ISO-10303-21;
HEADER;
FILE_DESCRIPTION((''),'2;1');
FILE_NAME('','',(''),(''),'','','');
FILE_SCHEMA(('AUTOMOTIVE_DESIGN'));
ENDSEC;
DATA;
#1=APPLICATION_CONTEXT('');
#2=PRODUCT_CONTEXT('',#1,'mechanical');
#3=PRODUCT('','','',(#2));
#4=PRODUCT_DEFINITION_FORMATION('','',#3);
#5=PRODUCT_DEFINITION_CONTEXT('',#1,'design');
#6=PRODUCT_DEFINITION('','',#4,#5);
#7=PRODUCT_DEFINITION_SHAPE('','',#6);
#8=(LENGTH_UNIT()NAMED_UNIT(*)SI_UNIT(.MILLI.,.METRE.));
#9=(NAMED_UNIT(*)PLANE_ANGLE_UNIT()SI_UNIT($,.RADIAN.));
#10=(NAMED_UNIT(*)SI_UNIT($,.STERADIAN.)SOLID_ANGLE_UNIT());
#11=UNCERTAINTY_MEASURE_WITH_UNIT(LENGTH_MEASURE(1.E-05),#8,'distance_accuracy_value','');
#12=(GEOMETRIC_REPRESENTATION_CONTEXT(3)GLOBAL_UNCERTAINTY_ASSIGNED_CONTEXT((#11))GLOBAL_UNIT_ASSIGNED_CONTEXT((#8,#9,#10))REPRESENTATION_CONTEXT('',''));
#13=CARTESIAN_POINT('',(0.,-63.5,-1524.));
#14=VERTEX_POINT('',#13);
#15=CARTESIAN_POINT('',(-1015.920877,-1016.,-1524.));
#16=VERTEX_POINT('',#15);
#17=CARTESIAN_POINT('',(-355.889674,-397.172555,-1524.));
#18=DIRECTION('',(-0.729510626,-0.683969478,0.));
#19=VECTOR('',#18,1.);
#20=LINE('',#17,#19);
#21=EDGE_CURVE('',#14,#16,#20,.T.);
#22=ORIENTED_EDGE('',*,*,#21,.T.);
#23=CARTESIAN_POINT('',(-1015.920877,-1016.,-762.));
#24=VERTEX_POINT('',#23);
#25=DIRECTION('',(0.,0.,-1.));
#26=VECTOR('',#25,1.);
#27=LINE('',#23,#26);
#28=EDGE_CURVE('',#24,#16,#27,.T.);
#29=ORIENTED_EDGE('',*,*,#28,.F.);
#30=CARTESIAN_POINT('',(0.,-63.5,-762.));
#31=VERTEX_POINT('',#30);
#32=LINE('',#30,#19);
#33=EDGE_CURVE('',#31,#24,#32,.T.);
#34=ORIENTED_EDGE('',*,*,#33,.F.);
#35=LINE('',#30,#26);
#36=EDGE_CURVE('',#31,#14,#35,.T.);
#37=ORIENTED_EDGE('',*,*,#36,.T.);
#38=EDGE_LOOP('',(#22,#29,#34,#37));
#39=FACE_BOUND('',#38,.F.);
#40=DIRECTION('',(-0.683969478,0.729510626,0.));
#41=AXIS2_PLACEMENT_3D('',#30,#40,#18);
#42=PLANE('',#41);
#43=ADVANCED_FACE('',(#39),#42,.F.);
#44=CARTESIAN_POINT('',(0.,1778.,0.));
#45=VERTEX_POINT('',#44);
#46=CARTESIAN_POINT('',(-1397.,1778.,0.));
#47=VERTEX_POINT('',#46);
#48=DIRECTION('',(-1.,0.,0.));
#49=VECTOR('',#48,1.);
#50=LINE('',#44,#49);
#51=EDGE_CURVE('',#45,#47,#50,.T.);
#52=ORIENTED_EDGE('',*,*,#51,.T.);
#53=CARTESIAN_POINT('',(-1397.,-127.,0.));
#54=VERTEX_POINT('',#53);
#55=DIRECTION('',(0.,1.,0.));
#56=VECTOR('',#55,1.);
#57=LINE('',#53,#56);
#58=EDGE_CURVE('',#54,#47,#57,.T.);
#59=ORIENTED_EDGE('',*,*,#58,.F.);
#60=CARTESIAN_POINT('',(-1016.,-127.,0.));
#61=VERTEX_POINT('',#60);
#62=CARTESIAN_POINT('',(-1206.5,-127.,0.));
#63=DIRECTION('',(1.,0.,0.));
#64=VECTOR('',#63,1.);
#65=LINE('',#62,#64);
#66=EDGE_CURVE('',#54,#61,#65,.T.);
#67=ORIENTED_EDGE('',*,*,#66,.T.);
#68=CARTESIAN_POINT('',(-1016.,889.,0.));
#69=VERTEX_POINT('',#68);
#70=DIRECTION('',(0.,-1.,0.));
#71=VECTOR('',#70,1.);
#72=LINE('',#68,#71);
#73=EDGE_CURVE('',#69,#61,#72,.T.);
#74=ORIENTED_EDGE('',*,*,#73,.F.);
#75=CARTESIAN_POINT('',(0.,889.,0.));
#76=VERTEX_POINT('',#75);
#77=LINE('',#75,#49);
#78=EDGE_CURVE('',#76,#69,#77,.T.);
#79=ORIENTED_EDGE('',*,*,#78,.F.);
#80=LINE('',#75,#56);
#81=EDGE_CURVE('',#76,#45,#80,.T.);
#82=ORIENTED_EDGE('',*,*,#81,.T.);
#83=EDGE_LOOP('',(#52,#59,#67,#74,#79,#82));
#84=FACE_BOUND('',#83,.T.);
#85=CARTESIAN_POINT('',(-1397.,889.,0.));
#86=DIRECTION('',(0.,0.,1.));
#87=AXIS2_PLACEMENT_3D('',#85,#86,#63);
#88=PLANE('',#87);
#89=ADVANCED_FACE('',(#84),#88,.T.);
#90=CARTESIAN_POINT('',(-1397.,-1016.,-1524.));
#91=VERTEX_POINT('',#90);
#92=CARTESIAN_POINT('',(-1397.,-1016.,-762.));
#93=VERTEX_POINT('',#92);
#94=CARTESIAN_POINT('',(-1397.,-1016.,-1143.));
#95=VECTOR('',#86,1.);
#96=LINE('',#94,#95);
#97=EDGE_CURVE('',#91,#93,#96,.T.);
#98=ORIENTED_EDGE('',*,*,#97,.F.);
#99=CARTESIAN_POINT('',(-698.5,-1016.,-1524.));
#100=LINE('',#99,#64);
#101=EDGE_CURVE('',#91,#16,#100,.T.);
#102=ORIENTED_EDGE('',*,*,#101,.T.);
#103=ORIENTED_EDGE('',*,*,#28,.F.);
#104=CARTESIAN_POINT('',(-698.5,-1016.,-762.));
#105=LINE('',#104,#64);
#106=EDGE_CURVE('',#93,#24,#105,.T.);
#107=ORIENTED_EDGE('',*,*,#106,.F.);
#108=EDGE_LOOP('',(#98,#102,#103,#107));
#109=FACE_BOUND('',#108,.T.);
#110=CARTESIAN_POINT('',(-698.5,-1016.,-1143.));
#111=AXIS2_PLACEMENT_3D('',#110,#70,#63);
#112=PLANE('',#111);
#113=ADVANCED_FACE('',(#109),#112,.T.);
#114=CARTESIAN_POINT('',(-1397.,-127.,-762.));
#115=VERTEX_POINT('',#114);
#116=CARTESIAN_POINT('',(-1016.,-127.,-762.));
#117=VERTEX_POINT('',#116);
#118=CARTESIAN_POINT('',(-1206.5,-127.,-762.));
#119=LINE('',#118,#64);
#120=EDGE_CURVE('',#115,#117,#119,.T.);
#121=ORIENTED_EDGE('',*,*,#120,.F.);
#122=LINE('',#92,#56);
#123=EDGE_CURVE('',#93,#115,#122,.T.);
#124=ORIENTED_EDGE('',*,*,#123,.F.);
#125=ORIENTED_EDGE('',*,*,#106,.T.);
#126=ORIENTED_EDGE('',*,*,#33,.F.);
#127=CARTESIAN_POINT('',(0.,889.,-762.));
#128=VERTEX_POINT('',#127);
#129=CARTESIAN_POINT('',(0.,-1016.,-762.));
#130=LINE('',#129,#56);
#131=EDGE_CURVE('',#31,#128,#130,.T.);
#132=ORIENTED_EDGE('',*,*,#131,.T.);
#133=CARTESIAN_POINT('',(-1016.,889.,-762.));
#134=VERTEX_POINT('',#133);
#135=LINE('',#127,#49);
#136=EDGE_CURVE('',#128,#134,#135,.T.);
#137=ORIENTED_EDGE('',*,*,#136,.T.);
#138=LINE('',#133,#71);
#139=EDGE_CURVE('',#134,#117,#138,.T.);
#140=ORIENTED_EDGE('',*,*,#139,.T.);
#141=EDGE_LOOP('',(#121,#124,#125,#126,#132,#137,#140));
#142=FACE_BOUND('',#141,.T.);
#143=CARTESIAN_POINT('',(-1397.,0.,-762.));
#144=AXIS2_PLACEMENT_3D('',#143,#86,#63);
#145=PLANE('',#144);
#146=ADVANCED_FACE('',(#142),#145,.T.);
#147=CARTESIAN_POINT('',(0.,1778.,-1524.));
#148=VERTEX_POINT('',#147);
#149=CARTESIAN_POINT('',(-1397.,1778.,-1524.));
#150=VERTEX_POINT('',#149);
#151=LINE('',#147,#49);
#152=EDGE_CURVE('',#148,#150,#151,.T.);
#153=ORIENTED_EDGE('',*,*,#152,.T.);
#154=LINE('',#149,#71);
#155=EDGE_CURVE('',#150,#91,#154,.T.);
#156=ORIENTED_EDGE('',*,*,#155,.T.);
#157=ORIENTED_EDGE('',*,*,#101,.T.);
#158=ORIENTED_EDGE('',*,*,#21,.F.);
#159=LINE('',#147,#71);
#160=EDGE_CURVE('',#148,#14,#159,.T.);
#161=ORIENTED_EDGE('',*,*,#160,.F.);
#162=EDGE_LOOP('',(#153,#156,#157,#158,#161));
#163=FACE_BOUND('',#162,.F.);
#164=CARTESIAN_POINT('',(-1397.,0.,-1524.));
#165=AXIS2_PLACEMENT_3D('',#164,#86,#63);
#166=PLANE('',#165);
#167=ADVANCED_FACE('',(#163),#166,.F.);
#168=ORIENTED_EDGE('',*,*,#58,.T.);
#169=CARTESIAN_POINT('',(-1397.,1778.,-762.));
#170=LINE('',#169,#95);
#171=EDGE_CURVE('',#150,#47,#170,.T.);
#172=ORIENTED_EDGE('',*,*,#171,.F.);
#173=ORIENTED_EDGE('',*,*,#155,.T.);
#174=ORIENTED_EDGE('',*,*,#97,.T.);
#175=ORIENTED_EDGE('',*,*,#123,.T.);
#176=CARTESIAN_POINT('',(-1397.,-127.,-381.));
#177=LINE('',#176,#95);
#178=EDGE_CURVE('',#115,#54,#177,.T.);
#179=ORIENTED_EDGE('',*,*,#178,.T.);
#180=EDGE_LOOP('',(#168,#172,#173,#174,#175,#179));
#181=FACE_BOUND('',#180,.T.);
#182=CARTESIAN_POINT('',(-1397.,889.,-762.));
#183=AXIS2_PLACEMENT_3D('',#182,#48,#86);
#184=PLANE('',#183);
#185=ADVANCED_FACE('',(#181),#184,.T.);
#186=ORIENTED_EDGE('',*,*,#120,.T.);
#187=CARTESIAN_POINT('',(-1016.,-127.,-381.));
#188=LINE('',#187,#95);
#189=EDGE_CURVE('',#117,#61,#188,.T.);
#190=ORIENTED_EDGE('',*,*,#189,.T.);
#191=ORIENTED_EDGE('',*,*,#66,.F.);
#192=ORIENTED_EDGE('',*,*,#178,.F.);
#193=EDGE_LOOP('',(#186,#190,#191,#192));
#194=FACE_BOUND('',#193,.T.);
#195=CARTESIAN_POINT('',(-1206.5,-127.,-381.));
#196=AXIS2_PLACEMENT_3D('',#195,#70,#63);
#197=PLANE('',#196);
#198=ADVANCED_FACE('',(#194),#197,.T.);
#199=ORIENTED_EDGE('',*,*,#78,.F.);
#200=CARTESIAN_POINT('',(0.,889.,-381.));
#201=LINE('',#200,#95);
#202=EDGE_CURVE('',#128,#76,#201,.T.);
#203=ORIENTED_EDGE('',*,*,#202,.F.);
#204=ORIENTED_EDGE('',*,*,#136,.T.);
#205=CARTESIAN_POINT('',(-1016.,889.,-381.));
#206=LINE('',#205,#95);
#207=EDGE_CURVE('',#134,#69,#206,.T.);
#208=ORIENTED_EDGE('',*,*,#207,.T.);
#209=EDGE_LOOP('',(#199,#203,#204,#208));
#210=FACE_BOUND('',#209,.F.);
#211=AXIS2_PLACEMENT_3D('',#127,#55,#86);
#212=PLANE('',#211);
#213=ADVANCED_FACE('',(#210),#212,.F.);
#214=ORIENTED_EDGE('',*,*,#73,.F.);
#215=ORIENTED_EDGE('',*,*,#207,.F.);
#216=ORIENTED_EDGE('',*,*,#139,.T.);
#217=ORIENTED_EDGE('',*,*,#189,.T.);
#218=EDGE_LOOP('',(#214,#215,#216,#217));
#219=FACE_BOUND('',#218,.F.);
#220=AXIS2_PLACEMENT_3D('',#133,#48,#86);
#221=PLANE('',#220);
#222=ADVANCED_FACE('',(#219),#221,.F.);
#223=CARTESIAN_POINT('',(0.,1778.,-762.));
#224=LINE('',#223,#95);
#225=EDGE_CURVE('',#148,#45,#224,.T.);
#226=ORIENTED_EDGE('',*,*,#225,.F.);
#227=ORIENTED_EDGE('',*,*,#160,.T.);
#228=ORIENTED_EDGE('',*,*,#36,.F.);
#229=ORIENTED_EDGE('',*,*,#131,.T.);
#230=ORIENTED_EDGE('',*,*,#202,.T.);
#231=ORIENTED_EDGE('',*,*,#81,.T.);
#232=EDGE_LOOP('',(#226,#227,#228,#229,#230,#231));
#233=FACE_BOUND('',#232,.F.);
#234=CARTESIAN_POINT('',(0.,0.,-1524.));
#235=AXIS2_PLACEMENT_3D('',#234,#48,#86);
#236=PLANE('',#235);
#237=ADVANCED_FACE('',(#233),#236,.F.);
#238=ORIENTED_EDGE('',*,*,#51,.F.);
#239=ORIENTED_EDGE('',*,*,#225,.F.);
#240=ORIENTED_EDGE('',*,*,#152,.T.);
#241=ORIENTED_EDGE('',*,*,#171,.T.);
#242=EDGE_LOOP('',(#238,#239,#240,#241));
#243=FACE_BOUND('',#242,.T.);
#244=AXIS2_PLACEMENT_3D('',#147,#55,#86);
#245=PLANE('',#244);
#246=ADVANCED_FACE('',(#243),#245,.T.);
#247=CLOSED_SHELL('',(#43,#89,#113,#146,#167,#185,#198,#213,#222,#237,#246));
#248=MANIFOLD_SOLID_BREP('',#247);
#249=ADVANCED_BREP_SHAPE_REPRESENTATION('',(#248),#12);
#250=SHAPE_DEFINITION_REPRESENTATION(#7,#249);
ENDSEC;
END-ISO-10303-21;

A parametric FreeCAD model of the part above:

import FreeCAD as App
import Part
import Sketcher
Q = App.Units.Quantity


def add_polygon(sketch, points):
    """Adds a closed chain of lines whose ends are joined by coincident constraints."""
    first, n = sketch.GeometryCount, len(points)
    for a, b in zip(points, points[1:] + points[:1]):
        sketch.addGeometry(Part.LineSegment(App.Vector(*a, 0), App.Vector(*b, 0)), False)
    for i in range(n):
        sketch.addConstraint(Sketcher.Constraint("Coincident", first + i, 2, first + (i + 1) % n, 1))

doc = App.newDocument("Part")
body = doc.addObject("PartDesign::Body", "Body")

# Sketch on YZ plane
sketch1 = body.newObject("Sketcher::SketchObject", "Sketch")
sketch1.AttachmentSupport = (doc.getObject("YZ_Plane"), [""])
sketch1.MapMode = "FlatFace"
add_polygon(sketch1, [(0, 0), (0, -1524), (1778, -1524), (1778, 0)])  # lines 0-3
sketch1.addConstraint([
    Sketcher.Constraint("Vertical", 0),
    Sketcher.Constraint("Horizontal", 1),
    Sketcher.Constraint("Vertical", 2),
    Sketcher.Constraint("Horizontal", 3),
    Sketcher.Constraint("Coincident", 3, 2, -1, 1),
    Sketcher.Constraint("DistanceX", 1, 1, 1, 2, Q("70 in")),
    Sketcher.Constraint("DistanceY", 0, 2, 0, 1, Q("60 in")),
])
pad1 = body.newObject("PartDesign::Pad", "Pad")
pad1.Profile = sketch1
pad1.Length = Q("55 in")
pad1.Reversed = True

# Sketch on YZ plane
sketch2 = body.newObject("Sketcher::SketchObject", "Sketch001")
sketch2.AttachmentSupport = (doc.getObject("YZ_Plane"), [""])
sketch2.MapMode = "FlatFace"
add_polygon(sketch2, [(0, 0), (0, -762), (889, -762), (889, 0)])  # lines 0-3
sketch2.addConstraint([
    Sketcher.Constraint("Vertical", 0),
    Sketcher.Constraint("Horizontal", 1),
    Sketcher.Constraint("Vertical", 2),
    Sketcher.Constraint("Horizontal", 3),
    Sketcher.Constraint("Coincident", 3, 2, -1, 1),
    Sketcher.Constraint("DistanceX", 1, 1, 1, 2, Q("35 in")),
    Sketcher.Constraint("DistanceY", 0, 2, 0, 1, Q("30 in")),
])
pocket1 = body.newObject("PartDesign::Pocket", "Pocket")
pocket1.Profile = sketch2
pocket1.Length = Q("69.1 in")

# Sketch on XZ plane
sketch3 = body.newObject("Sketcher::SketchObject", "Sketch002")
sketch3.AttachmentSupport = (doc.getObject("XZ_Plane"), [""])
sketch3.MapMode = "FlatFace"
add_polygon(sketch3, [(-1397, -762), (-1397, -1524), (0, -1524), (0, -762)])  # lines 0-3
sketch3.addConstraint([
    Sketcher.Constraint("Vertical", 0),
    Sketcher.Constraint("Horizontal", 1),
    Sketcher.Constraint("Vertical", 2),
    Sketcher.Constraint("Horizontal", 3),
    Sketcher.Constraint("PointOnObject", 1, 2, -2),
    Sketcher.Constraint("DistanceX", 1, 1, 1, 2, Q("55 in")),
    Sketcher.Constraint("DistanceY", 0, 2, 0, 1, Q("30 in")),
    Sketcher.Constraint("DistanceY", 0, 2, -1, 1, Q("60 in")),
])
pad2 = body.newObject("PartDesign::Pad", "Pad001")
pad2.Profile = sketch3
pad2.Length = Q("40 in")

# Sketch on XY plane
sketch4 = body.newObject("Sketcher::SketchObject", "Sketch003")
sketch4.AttachmentSupport = (doc.getObject("XY_Plane"), [""])
sketch4.MapMode = "FlatFace"
sketch4.AttachmentOffset = App.Placement(App.Vector(0, 0, -30 * 25.4), App.Rotation())
add_polygon(sketch4, [(0, -1016), (0, -64), (-1016, -1016)])  # lines 0-2
sketch4.addConstraint([
    Sketcher.Constraint("Vertical", 0),
    Sketcher.Constraint("Horizontal", 2),
    Sketcher.Constraint("PointOnObject", 0, 2, -2),
    Sketcher.Constraint("DistanceY", 0, 1, 0, 2, Q("37.5 in")),
    Sketcher.Constraint("DistanceY", 1, 2, -1, 1, Q("40 in")),
    Sketcher.Constraint("DistanceX", 2, 1, 2, 2, 1015.920877),
])
pocket2 = body.newObject("PartDesign::Pocket", "Pocket001")
pocket2.Profile = sketch4
pocket2.Length = Q("48.3 in")

# Sketch on XZ plane
sketch5 = body.newObject("Sketcher::SketchObject", "Sketch004")
sketch5.AttachmentSupport = (doc.getObject("XZ_Plane"), [""])
sketch5.MapMode = "FlatFace"
sketch5.AttachmentOffset = App.Placement(App.Vector(0, 0, -35 * 25.4), App.Rotation())
add_polygon(sketch5, [(-1397, 0), (-1397, -762), (-1016, -762), (-1016, 0)])  # lines 0-3
sketch5.addConstraint([
    Sketcher.Constraint("Vertical", 0),
    Sketcher.Constraint("Horizontal", 1),
    Sketcher.Constraint("Vertical", 2),
    Sketcher.Constraint("Horizontal", 3),
    Sketcher.Constraint("PointOnObject", 2, 2, -1),
    Sketcher.Constraint("DistanceX", 1, 1, 1, 2, Q("15 in")),
    Sketcher.Constraint("DistanceY", 0, 2, 0, 1, Q("30 in")),
    Sketcher.Constraint("DistanceX", 0, 2, -1, 1, Q("55 in")),
])
pad3 = body.newObject("PartDesign::Pad", "Pad002")
pad3.Profile = sketch5
pad3.Length = Q("40 in")

doc.recompute()
